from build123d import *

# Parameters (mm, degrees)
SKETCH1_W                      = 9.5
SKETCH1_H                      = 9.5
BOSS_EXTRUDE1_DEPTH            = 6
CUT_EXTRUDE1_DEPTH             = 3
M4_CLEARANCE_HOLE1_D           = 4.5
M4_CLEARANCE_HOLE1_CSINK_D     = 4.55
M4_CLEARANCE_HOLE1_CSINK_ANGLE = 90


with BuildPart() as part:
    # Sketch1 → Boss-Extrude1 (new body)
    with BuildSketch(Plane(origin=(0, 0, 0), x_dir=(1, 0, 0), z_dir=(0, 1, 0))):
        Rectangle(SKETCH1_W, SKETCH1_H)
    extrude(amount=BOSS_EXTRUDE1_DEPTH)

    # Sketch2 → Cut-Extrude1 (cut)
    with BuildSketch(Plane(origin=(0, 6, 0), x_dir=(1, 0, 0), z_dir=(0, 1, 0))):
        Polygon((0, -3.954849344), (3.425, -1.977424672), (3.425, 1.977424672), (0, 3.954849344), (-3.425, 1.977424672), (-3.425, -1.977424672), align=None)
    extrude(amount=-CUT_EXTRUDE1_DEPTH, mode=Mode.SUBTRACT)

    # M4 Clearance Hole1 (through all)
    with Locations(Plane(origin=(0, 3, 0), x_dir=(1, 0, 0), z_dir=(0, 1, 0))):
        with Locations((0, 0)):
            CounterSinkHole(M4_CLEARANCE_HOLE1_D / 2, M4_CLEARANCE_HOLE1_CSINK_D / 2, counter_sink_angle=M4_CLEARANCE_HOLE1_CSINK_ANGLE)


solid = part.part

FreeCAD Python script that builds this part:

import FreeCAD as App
import Part
import Sketcher
from FreeCAD import Vector
Q = App.Units.Quantity

doc = App.newDocument("Part")
body = doc.addObject("PartDesign::Body", "Body")

# Sketch on XZ plane
sketch1 = body.newObject("Sketcher::SketchObject", "Sketch")
sketch1.AttachmentSupport = (doc.getObject("XZ_Plane"), [""])
sketch1.MapMode = "FlatFace"
sketch1.addGeometry([
    Part.LineSegment(Vector(-5, -5, 0), Vector(-5, 5, 0)),
    Part.LineSegment(Vector(-5, 5, 0), Vector(5, 5, 0)),
    Part.LineSegment(Vector(5, 5, 0), Vector(5, -5, 0)),
    Part.LineSegment(Vector(5, -5, 0), Vector(-5, -5, 0)),
], False)
sketch1.addConstraint([
    Sketcher.Constraint("Coincident", 0, 2, 1, 1),
    Sketcher.Constraint("Coincident", 1, 2, 2, 1),
    Sketcher.Constraint("Coincident", 2, 2, 3, 1),
    Sketcher.Constraint("Coincident", 3, 2, 0, 1),
    Sketcher.Constraint("Vertical", 0),
    Sketcher.Constraint("Horizontal", 1),
    Sketcher.Constraint("Vertical", 2),
    Sketcher.Constraint("Horizontal", 3),
    Sketcher.Constraint("Symmetric", 0, 2, 2, 2, -1, 1),
    Sketcher.Constraint("Equal", 3, 0),
    Sketcher.Constraint("DistanceX", 1, 1, 1, 2, 9.5),
])
pad1 = body.newObject("PartDesign::Pad", "Pad")
pad1.Profile = sketch1
pad1.Length = 6
pad1.Reversed = True

# Sketch on XZ plane
sketch2 = body.newObject("Sketcher::SketchObject", "Sketch001")
sketch2.AttachmentSupport = (doc.getObject("XZ_Plane"), [""])
sketch2.MapMode = "FlatFace"
sketch2.AttachmentOffset = App.Placement(Vector(0, 0, -6), App.Rotation())
sketch2.addGeometry([
    Part.LineSegment(Vector(0, 4, 0), Vector(3.4, 2, 0)),  # 0
    Part.LineSegment(Vector(3.4, 2, 0), Vector(3.4, -2, 0)),  # 1
    Part.LineSegment(Vector(3.4, -2, 0), Vector(0, -4, 0)),  # 2
    Part.LineSegment(Vector(0, -4, 0), Vector(-3.4, -2, 0)),  # 3
    Part.LineSegment(Vector(-3.4, -2, 0), Vector(-3.4, 2, 0)),  # 4
    Part.LineSegment(Vector(-3.4, 2, 0), Vector(0, 4, 0)),  # 5
], False)
sketch2.addConstraint([
    Sketcher.Constraint("Coincident", 0, 2, 1, 1),
    Sketcher.Constraint("Coincident", 1, 2, 2, 1),
    Sketcher.Constraint("Coincident", 2, 2, 3, 1),
    Sketcher.Constraint("Coincident", 3, 2, 4, 1),
    Sketcher.Constraint("Coincident", 4, 2, 5, 1),
    Sketcher.Constraint("Coincident", 5, 2, 0, 1),
    Sketcher.Constraint("Vertical", 1),
    Sketcher.Constraint("Vertical", 4),
    Sketcher.Constraint("Symmetric", 0, 2, 3, 2, -1, 1),
    Sketcher.Constraint("Symmetric", 2, 2, 5, 2, -1, 1),
    Sketcher.Constraint("PointOnObject", 2, 2, -2),
    Sketcher.Constraint("Parallel", 2, 5),
    Sketcher.Constraint("Horizontal", 1, 2, 3, 2),
    Sketcher.Constraint("Angle", 0, Q("-30 deg")),
    Sketcher.Constraint("DistanceX", 3, 2, 1, 2, 6.85),
    Sketcher.Constraint("DistanceY", 1, 2, 1, 1, 3.954849),
])
pocket1 = body.newObject("PartDesign::Pocket", "Pocket")
pocket1.Profile = sketch2
pocket1.Length = 3
pocket1.Reversed = True

# Sketch on XZ plane
sketch3 = body.newObject("Sketcher::SketchObject", "Sketch002")
sketch3.AttachmentSupport = (doc.getObject("XZ_Plane"), [""])
sketch3.MapMode = "FlatFace"
sketch3.AttachmentOffset = App.Placement(Vector(0, 0, -3), App.Rotation())
sketch3.addGeometry(Part.Circle(Vector(0, 0, 0), Vector(0, 0, 1), 2.2), False)
sketch3.addConstraint([
    Sketcher.Constraint("Coincident", 0, 3, -1, 1),
    Sketcher.Constraint("Diameter", 0, 4.5),
])
doc.recompute()
hole = body.newObject("PartDesign::Hole", "Hole")
hole.Profile = sketch3
hole.ThreadType = "None"
hole.Diameter = 4.5
hole.DepthType = "ThroughAll"
hole.HoleCutType = "Countersink"
hole.HoleCutDiameter = 4.55
hole.HoleCutCountersinkAngle = 90
hole.Reversed = True

doc.recompute()
